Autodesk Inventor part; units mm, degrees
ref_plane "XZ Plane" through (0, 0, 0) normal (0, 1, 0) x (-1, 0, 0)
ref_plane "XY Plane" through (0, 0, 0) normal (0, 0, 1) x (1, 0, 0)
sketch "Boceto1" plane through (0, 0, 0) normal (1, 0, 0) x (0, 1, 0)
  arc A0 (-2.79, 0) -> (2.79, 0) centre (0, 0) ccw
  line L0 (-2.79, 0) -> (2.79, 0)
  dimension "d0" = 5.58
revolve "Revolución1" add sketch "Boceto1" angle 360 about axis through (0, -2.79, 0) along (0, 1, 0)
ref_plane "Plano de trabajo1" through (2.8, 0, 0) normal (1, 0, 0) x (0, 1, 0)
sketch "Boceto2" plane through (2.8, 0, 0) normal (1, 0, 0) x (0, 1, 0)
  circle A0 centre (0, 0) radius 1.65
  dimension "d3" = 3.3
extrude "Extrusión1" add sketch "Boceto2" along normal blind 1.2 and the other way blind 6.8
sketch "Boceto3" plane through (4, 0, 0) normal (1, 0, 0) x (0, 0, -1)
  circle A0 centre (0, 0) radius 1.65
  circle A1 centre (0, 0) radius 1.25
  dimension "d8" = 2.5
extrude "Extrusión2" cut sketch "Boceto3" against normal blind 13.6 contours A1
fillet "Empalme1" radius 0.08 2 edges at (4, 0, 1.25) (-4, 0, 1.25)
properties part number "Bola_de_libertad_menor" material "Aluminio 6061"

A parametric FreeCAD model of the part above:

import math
import FreeCAD as App
import Part
import Sketcher
from FreeCAD import Vector
Q = App.Units.Quantity


def edges_at(feature, points):
    """Names of the edges that pass closest to the given points."""
    edges = feature.Shape.Edges
    near = lambda p: min(range(len(edges)), key=lambda i: edges[i].distToShape(Part.Vertex(*p))[0])
    return sorted({f"Edge{near(p) + 1}" for p in points})

doc = App.newDocument("Part")
body = doc.addObject("PartDesign::Body", "Body")

# Sketch on YZ plane
sketch1 = body.newObject("Sketcher::SketchObject", "Sketch")
sketch1.AttachmentSupport = (doc.getObject("YZ_Plane"), [""])
sketch1.MapMode = "FlatFace"
sketch1.addGeometry([
    Part.LineSegment(Vector(2.8, 0, 0), Vector(-2.8, 0, 0)),
    Part.ArcOfCircle(Part.Circle(Vector(0, 0, 0), Vector(0, 0, 1), 2.8), math.radians(180), math.radians(360)),
], False)
sketch1.addConstraint([
    Sketcher.Constraint("Coincident", 0, 1, 1, 2),
    Sketcher.Constraint("Coincident", 1, 1, 0, 2),
    Sketcher.Constraint("Horizontal", 0),
    Sketcher.Constraint("Coincident", 1, 3, -1, 1),
    Sketcher.Constraint("PointOnObject", 0, 1, -1),
    Sketcher.Constraint("Radius", 1, Q("2.79 mm")),
])
revolution = body.newObject("PartDesign::Revolution", "Revolution")
revolution.Profile = sketch1
revolution.ReferenceAxis = (sketch1, ["H_Axis"])
revolution.Angle = 360

# Sketch on YZ plane
sketch2 = body.newObject("Sketcher::SketchObject", "Sketch001")
sketch2.AttachmentSupport = (doc.getObject("YZ_Plane"), [""])
sketch2.MapMode = "FlatFace"
sketch2.AttachmentOffset = App.Placement(Vector(0, 0, 2.8), App.Rotation())
sketch2.addGeometry(Part.Circle(Vector(0, 0, 0), Vector(0, 0, 1), 1.6), False)
sketch2.addConstraint([
    Sketcher.Constraint("Coincident", 0, 3, -1, 1),
    Sketcher.Constraint("Diameter", 0, Q("3.3 mm")),
])
pad1 = body.newObject("PartDesign::Pad", "Pad")
pad1.Profile = sketch2
pad1.Type = "TwoLengths"
pad1.Length = 1.2
pad1.Length2 = 6.8

# Sketch on YZ plane
sketch3 = body.newObject("Sketcher::SketchObject", "Sketch002")
sketch3.AttachmentSupport = (doc.getObject("YZ_Plane"), [""])
sketch3.MapMode = "FlatFace"
sketch3.AttachmentOffset = App.Placement(Vector(0, 0, 4), App.Rotation())
sketch3.addGeometry(Part.Circle(Vector(0, 0, 0), Vector(0, 0, 1), 1.2), False)
sketch3.addConstraint([
    Sketcher.Constraint("Coincident", 0, 3, -1, 1),
    Sketcher.Constraint("Diameter", 0, Q("2.5 mm")),
])
pocket1 = body.newObject("PartDesign::Pocket", "Pocket")
pocket1.Profile = sketch3
pocket1.Length = 13.6
doc.recompute()

fillet = body.newObject("PartDesign::Fillet", "Fillet")
fillet.Base = (pocket1, edges_at(pocket1, [(4, 0, 1.25), (-4, 0, 1.25)]))
fillet.Radius = 0.08

doc.recompute()
